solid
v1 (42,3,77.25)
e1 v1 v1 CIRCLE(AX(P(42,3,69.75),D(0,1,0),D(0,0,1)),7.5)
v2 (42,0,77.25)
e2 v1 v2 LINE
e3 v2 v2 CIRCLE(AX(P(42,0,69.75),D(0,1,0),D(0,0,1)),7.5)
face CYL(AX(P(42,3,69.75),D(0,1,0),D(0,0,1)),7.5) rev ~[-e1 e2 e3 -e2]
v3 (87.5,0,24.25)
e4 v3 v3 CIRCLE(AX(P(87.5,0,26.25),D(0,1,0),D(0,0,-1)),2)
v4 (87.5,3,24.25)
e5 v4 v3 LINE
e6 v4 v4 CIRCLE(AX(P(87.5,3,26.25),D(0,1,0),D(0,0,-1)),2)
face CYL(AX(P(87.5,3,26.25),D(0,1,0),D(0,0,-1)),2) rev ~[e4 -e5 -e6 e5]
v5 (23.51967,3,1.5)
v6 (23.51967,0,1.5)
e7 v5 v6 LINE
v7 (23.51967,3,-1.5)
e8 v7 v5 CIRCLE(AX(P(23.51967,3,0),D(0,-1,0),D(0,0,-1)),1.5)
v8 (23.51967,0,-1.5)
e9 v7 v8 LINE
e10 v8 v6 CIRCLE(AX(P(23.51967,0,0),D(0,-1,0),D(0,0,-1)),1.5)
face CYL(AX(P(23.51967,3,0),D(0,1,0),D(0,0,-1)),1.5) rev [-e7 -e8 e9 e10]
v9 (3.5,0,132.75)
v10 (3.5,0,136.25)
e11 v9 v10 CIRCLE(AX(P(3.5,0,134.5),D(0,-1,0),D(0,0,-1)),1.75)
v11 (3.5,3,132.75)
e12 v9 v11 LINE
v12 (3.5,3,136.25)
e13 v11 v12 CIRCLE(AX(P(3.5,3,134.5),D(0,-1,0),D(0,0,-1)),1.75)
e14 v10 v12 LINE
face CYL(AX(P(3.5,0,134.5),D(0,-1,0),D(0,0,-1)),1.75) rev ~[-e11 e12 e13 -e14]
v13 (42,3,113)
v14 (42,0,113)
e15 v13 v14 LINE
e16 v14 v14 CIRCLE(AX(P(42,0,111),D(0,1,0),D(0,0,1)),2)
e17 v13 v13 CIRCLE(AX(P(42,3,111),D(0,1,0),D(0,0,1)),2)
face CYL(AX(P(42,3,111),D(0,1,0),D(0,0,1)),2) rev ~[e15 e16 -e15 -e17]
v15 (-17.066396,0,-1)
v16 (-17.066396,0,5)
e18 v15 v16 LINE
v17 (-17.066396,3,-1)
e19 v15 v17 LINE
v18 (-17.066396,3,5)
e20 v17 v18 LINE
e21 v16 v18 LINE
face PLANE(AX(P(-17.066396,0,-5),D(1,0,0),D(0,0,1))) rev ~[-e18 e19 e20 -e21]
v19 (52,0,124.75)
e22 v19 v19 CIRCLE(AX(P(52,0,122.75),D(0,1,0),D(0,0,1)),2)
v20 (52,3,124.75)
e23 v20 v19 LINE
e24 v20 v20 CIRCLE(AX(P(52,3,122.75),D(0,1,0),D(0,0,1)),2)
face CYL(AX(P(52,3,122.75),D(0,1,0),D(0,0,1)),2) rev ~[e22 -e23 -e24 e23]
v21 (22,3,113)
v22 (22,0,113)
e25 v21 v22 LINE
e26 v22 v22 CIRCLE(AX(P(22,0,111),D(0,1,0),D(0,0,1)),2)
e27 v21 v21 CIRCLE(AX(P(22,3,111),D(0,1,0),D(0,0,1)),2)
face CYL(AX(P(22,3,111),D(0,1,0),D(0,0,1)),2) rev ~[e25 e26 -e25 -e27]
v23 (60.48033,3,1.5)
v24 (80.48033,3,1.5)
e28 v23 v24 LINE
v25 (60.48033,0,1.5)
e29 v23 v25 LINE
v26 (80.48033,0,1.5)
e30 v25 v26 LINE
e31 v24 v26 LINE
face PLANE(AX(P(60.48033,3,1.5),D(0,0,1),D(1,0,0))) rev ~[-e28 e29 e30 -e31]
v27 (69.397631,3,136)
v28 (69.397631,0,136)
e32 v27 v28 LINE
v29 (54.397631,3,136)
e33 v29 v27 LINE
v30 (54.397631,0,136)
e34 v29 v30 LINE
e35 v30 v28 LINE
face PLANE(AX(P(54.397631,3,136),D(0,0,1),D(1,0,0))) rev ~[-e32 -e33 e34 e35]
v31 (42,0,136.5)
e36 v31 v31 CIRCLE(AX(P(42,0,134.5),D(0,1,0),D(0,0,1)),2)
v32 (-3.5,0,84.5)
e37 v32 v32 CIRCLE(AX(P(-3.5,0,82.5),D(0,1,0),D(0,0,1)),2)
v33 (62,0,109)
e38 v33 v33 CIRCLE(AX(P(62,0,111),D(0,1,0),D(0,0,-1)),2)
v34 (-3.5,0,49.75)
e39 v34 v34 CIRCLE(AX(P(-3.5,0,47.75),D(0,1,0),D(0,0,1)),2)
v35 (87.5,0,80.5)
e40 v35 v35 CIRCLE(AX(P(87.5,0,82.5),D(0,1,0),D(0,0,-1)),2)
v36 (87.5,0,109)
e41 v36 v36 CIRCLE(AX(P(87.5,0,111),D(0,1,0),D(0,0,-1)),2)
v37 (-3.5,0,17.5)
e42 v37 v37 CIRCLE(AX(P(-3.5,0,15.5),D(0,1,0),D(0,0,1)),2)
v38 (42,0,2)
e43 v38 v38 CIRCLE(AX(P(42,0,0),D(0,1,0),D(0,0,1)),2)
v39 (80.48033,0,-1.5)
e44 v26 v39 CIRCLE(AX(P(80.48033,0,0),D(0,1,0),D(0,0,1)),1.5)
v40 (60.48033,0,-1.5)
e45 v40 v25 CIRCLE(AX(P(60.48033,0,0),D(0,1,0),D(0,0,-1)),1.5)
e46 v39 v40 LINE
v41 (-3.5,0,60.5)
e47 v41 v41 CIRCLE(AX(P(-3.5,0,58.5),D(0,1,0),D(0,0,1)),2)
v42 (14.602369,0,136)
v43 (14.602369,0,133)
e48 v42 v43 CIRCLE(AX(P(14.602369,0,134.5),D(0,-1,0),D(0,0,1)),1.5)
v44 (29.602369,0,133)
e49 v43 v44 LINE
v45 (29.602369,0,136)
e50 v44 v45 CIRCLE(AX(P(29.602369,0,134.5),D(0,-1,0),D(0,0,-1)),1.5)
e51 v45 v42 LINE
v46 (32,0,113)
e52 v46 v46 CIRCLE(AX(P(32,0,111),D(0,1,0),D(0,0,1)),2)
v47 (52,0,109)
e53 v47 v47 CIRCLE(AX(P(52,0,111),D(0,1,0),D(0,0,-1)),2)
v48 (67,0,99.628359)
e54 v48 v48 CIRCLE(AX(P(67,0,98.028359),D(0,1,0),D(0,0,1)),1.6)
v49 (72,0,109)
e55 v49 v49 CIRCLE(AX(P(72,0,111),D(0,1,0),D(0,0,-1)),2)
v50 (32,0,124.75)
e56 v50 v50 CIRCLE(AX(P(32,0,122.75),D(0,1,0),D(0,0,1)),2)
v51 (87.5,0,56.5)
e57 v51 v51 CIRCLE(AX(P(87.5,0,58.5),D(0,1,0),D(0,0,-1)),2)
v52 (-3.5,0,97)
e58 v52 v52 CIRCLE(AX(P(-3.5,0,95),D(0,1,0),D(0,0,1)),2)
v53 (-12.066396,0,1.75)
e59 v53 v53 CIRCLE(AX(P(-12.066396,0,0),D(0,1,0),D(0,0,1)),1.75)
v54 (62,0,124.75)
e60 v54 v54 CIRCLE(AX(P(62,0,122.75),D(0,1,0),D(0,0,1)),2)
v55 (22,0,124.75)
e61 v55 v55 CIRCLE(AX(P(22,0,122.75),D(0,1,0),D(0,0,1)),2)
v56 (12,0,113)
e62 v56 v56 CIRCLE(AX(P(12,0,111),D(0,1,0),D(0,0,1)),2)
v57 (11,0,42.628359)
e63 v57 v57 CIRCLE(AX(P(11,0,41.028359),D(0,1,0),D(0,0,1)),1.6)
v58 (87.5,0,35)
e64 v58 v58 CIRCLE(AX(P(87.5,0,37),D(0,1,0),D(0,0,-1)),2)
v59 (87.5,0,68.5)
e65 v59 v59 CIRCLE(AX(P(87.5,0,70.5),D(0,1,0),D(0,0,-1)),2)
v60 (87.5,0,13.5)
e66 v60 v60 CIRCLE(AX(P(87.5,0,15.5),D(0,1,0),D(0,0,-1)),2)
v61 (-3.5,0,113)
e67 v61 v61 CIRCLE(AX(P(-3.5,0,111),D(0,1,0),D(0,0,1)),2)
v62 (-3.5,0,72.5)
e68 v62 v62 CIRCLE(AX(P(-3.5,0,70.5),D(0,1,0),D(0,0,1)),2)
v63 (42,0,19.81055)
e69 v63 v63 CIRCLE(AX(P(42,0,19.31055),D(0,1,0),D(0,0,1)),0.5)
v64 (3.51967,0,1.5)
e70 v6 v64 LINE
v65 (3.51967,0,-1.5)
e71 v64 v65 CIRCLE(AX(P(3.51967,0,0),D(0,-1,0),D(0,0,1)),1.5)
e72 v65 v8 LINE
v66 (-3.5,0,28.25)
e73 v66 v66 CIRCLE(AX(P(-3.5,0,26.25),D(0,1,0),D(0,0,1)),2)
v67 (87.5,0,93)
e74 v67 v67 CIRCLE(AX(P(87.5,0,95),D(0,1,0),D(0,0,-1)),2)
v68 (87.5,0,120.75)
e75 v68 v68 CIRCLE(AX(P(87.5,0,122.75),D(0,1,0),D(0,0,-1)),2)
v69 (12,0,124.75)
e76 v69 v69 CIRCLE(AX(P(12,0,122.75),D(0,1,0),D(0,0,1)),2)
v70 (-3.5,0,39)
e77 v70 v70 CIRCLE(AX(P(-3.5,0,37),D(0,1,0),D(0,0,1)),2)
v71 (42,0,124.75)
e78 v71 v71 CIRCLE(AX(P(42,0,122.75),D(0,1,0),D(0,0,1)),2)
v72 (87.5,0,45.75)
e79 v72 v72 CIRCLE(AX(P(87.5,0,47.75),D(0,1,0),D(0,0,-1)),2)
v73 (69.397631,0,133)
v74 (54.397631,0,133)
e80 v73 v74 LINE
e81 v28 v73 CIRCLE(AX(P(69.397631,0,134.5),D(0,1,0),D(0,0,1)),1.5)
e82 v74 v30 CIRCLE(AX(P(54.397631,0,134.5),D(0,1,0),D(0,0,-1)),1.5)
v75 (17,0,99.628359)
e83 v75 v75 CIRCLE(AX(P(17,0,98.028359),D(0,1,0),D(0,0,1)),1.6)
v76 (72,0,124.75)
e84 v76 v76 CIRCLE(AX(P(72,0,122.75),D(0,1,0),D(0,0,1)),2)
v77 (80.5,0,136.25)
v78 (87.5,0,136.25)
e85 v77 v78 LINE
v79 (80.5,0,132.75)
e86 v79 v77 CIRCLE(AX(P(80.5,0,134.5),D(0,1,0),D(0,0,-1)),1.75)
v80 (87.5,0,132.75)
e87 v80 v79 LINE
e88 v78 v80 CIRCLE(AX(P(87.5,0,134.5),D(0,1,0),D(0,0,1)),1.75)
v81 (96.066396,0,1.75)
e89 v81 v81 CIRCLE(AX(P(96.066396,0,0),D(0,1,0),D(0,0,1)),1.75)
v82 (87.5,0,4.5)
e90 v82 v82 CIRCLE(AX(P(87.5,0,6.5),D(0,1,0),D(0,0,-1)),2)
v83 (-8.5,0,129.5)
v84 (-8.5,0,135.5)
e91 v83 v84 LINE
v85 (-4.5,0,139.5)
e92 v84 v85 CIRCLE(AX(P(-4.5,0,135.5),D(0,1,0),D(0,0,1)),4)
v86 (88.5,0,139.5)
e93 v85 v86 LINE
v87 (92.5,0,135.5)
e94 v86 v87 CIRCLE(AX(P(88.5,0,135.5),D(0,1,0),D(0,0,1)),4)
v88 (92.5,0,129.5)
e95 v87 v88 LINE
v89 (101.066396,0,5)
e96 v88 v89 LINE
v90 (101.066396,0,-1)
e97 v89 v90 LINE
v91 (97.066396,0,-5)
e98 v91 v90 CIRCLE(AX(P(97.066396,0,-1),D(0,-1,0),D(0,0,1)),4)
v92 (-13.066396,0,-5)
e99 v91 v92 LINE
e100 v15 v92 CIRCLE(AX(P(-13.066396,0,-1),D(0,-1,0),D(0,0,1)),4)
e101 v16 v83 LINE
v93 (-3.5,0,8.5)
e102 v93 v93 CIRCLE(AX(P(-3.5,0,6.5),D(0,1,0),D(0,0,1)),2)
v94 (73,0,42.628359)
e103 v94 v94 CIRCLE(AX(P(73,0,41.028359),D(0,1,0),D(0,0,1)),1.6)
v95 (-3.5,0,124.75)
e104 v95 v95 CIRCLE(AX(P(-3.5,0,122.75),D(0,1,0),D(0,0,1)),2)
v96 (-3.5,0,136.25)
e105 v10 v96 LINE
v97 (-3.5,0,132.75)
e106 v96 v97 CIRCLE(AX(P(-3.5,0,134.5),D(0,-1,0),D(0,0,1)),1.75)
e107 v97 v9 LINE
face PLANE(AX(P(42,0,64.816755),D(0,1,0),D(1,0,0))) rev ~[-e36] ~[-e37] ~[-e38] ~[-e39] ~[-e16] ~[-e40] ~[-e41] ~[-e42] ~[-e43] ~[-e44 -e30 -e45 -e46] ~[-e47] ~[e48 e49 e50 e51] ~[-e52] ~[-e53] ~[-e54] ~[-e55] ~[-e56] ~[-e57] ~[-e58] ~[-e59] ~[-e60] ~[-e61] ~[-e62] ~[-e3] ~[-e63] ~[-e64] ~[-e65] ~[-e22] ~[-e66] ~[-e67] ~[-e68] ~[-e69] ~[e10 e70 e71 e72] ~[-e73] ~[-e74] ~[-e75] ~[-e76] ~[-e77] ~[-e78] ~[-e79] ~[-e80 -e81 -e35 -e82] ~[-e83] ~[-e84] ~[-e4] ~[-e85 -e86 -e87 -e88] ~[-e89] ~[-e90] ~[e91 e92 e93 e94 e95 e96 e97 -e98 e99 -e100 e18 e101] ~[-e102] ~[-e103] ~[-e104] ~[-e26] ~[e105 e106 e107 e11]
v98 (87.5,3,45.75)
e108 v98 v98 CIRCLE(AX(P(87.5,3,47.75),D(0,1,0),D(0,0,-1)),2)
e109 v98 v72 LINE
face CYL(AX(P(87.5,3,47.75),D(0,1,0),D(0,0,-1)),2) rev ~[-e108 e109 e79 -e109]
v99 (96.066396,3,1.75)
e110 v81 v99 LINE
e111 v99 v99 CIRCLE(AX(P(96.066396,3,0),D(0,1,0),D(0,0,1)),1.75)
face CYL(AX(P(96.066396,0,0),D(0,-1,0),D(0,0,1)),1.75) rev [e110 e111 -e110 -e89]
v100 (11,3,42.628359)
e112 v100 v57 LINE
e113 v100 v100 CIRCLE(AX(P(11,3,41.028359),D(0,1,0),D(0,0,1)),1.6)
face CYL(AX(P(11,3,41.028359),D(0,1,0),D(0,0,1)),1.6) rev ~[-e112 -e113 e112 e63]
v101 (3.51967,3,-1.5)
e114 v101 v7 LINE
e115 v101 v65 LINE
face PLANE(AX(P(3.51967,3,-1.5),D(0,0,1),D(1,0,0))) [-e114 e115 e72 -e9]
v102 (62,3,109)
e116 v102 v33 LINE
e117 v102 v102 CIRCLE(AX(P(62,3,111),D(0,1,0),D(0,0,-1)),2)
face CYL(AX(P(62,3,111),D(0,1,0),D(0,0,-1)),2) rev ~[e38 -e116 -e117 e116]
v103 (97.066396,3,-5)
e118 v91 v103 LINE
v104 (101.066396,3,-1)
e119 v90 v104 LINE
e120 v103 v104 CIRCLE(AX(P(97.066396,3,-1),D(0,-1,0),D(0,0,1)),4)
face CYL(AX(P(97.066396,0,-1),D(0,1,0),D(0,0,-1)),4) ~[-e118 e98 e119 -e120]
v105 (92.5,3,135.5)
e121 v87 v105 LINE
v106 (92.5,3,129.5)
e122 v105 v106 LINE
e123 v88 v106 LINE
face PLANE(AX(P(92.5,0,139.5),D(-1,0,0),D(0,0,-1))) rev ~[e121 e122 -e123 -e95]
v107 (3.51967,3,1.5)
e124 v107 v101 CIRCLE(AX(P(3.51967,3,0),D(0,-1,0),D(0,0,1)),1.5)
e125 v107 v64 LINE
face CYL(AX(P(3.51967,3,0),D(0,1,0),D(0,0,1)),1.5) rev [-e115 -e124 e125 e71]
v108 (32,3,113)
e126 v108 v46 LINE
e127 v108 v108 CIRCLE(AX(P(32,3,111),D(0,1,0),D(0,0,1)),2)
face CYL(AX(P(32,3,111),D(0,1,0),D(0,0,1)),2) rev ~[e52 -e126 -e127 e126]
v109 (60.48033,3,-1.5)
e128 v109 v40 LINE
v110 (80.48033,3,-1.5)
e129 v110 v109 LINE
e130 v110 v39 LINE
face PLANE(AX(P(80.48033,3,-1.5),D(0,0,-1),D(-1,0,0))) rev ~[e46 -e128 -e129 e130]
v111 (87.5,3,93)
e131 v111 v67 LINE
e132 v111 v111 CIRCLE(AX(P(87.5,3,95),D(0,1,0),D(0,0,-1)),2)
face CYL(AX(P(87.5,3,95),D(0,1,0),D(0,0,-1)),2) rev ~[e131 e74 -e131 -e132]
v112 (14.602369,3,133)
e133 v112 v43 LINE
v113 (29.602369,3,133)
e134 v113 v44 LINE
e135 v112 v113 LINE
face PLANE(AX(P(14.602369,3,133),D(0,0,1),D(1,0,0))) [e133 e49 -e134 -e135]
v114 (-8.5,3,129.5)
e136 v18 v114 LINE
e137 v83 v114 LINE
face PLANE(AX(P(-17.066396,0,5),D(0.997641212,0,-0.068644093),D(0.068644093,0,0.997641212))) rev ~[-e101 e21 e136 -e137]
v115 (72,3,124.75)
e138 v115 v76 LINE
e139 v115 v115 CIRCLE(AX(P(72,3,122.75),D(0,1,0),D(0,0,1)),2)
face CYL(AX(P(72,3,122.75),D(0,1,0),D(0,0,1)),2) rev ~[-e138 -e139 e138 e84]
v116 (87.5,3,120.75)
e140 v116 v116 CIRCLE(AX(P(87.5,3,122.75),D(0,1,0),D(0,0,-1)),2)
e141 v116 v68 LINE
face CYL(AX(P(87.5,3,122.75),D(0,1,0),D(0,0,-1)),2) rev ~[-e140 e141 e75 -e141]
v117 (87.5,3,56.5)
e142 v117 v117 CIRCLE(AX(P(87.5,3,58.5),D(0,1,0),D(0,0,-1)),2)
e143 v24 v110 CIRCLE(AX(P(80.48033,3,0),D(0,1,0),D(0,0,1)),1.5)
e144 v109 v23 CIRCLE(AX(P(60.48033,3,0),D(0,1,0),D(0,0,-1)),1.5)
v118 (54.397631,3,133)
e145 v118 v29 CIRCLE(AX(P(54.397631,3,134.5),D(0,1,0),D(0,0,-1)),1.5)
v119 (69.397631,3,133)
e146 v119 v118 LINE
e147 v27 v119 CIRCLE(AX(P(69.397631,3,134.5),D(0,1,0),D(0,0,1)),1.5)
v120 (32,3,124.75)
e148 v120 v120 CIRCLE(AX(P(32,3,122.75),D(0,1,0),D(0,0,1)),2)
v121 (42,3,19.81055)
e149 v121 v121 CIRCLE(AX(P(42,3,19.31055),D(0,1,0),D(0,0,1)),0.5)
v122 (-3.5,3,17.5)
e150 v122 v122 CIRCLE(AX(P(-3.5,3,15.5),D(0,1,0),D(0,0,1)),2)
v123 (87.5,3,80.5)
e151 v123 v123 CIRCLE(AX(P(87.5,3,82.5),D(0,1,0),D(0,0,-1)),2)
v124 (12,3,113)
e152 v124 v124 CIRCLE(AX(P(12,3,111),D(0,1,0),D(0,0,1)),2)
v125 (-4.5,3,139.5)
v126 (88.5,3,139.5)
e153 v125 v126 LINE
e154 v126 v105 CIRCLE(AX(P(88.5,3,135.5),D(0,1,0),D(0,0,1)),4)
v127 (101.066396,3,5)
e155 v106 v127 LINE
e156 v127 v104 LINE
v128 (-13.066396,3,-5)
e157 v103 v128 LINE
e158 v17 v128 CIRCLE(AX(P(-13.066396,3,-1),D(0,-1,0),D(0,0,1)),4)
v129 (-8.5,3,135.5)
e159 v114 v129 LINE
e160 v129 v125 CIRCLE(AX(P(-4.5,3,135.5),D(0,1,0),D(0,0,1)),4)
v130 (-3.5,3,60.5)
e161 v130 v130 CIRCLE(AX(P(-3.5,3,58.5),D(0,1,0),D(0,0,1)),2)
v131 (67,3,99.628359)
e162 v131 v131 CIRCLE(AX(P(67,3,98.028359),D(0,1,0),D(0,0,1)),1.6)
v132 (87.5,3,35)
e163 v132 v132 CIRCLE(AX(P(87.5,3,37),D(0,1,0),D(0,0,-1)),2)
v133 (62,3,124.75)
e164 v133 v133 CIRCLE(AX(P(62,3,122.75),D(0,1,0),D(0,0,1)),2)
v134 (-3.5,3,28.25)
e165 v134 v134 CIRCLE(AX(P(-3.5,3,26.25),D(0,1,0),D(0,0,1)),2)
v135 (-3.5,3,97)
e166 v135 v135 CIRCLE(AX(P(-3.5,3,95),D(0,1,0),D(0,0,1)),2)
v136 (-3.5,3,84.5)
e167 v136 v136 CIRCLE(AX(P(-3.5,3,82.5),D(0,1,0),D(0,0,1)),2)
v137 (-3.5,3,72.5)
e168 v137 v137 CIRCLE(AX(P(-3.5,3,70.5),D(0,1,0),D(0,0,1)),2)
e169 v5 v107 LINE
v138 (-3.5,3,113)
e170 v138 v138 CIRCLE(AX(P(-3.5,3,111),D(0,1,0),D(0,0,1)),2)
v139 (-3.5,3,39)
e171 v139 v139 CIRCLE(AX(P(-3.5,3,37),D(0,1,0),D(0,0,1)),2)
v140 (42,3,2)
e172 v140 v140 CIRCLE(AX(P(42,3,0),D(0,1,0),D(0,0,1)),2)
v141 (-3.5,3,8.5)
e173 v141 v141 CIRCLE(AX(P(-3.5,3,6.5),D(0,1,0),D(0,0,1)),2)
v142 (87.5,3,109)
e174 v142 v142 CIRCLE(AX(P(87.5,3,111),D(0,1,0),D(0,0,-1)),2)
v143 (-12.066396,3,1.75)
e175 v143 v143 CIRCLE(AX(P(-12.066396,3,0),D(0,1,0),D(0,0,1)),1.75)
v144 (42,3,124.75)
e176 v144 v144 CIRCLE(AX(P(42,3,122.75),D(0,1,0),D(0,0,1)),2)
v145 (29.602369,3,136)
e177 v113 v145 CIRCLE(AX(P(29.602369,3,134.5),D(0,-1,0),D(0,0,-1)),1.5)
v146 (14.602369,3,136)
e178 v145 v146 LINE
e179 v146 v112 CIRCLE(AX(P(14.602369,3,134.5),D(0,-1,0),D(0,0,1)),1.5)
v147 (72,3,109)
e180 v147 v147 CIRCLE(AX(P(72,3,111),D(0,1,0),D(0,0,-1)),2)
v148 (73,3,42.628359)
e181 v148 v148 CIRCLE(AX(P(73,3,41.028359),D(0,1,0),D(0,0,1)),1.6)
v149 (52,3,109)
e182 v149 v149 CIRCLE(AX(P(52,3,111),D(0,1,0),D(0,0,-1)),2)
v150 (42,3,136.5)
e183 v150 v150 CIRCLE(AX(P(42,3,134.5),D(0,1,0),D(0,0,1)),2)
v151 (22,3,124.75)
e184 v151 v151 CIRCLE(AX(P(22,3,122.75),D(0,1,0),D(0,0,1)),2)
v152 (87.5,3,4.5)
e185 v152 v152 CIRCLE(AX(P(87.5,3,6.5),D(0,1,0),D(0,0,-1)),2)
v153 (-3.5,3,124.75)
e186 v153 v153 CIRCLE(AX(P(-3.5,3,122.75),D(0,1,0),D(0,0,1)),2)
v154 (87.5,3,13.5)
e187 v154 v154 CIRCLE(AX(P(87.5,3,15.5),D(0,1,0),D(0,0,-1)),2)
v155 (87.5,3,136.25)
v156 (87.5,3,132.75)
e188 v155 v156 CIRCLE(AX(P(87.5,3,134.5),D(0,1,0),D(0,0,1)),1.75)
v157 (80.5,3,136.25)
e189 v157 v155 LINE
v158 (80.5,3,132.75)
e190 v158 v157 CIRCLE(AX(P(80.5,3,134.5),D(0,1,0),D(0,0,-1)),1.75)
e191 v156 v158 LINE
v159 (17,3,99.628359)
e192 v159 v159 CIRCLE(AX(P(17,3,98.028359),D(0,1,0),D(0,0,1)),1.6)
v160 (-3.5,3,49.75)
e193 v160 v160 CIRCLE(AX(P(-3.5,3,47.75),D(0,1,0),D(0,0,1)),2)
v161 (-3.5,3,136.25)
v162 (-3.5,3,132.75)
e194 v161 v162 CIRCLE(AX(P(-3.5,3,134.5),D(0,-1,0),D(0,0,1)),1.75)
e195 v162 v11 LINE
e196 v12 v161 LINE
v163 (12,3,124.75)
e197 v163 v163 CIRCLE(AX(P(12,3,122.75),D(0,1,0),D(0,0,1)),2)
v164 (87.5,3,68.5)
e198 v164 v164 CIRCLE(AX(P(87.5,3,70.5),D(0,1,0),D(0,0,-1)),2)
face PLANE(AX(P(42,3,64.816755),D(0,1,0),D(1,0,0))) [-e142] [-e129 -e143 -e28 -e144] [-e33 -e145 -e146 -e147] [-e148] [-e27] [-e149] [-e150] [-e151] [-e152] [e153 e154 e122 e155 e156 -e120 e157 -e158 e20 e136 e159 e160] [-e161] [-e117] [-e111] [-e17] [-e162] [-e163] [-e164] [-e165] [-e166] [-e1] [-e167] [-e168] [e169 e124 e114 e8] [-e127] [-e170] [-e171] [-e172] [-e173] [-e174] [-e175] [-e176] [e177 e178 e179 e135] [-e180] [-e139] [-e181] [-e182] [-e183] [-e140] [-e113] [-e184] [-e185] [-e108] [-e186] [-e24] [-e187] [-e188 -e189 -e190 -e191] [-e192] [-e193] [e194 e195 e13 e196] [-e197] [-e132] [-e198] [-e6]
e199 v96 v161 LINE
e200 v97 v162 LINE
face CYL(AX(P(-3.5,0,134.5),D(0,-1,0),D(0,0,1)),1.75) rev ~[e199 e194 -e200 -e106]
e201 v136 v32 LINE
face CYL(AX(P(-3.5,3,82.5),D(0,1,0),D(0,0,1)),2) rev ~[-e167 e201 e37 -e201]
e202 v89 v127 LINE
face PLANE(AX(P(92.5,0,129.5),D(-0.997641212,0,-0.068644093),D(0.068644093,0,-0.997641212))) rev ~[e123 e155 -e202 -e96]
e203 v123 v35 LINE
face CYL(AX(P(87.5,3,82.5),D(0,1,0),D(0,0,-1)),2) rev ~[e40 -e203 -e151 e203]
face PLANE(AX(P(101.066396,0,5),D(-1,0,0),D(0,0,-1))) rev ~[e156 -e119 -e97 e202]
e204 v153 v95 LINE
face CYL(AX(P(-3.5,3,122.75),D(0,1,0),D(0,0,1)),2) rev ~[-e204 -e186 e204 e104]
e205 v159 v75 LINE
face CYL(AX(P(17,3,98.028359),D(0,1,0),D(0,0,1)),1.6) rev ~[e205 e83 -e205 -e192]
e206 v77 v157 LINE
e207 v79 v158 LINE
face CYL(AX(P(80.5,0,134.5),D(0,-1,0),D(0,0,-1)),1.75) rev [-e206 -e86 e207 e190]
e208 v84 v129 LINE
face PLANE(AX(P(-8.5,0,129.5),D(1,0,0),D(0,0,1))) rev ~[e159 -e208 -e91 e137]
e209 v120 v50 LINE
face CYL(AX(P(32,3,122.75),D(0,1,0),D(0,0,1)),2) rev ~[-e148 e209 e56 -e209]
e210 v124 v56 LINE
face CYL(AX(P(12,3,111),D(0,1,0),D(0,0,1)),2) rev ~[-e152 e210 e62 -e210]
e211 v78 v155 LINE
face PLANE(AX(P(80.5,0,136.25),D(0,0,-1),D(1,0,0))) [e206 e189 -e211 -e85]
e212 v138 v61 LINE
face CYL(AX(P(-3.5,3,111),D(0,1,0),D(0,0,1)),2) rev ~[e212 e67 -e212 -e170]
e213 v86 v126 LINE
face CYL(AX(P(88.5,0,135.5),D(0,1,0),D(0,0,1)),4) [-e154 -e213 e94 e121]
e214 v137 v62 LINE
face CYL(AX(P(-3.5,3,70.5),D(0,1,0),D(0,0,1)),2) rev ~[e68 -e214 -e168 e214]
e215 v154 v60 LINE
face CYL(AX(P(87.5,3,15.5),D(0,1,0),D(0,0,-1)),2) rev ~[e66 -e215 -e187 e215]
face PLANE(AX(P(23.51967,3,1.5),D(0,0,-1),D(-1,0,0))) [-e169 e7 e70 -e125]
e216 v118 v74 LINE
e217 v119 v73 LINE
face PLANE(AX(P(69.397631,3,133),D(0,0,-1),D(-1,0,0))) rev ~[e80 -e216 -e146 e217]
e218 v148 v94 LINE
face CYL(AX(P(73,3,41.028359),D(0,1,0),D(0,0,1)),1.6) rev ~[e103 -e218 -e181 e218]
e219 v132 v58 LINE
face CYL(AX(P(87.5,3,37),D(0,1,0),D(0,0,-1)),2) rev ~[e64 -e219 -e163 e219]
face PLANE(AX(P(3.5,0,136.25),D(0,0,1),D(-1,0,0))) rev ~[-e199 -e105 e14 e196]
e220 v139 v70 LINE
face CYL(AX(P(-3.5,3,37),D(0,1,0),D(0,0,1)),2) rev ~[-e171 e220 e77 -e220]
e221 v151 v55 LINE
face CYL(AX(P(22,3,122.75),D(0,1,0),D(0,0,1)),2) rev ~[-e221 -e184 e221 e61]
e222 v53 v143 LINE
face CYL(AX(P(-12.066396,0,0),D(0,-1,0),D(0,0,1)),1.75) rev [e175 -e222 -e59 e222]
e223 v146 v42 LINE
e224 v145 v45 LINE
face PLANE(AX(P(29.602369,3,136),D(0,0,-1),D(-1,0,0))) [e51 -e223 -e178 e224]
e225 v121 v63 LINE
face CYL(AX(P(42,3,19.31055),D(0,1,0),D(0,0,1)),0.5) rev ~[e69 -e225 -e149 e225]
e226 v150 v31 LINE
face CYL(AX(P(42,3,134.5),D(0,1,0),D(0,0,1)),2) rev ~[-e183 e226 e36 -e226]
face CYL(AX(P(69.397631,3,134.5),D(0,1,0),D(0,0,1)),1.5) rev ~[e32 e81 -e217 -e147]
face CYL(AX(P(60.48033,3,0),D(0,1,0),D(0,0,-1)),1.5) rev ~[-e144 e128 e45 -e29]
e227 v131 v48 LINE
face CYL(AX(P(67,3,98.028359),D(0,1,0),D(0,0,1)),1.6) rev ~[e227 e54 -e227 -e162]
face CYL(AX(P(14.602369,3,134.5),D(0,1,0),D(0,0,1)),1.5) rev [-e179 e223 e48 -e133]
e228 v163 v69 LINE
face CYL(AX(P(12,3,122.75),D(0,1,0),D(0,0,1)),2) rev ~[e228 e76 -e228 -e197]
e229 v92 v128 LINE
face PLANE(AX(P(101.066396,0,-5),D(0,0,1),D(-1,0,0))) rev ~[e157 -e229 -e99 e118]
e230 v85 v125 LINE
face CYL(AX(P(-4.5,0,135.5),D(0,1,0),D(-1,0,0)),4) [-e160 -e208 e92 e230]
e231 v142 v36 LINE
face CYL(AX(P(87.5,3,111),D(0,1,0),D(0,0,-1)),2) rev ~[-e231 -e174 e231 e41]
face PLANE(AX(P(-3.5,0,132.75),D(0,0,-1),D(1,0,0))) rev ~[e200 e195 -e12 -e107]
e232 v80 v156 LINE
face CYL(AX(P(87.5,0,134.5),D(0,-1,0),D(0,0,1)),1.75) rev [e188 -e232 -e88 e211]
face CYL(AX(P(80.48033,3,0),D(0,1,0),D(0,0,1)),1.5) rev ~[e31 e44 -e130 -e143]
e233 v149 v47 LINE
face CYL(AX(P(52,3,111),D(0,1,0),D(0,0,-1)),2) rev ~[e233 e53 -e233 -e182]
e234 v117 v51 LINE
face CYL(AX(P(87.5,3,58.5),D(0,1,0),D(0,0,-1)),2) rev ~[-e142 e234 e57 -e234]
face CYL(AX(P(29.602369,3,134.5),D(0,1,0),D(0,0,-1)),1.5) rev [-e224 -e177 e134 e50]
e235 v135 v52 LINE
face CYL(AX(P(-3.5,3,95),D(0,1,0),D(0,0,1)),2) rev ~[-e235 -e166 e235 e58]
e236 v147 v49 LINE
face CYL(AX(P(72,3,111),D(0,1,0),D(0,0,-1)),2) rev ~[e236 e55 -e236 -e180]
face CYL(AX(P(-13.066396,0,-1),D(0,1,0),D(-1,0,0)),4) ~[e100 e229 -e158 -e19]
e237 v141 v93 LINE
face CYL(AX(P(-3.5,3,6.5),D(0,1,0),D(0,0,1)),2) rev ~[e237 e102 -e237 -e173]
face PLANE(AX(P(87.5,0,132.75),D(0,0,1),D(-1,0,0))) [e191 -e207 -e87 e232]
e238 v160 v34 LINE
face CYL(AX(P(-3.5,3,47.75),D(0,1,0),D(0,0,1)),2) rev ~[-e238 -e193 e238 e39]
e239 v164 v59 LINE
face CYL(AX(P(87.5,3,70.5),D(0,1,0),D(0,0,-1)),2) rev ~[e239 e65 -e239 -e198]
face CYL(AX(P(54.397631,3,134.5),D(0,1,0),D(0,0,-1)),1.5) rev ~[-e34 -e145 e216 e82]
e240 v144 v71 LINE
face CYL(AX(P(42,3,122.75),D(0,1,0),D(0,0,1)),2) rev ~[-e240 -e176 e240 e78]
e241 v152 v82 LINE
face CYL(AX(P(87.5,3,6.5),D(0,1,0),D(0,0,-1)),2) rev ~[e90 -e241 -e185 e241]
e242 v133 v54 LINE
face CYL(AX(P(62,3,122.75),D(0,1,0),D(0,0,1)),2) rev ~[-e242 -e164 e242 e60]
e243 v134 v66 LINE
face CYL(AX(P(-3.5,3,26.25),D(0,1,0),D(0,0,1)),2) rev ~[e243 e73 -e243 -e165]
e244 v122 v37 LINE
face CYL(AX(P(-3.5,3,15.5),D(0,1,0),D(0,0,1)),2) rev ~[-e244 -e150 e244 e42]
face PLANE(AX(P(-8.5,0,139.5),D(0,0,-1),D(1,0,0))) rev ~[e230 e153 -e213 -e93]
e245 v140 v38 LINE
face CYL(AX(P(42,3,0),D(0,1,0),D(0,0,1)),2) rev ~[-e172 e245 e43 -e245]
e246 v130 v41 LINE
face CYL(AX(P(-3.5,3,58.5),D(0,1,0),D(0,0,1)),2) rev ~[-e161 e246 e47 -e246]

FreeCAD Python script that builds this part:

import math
import FreeCAD as App
import Part
import Sketcher
from FreeCAD import Vector
Q = App.Units.Quantity


def edges_at(feature, points):
    """Names of the edges that pass closest to the given points."""
    edges = feature.Shape.Edges
    near = lambda p: min(range(len(edges)), key=lambda i: edges[i].distToShape(Part.Vertex(*p))[0])
    return sorted({f"Edge{near(p) + 1}" for p in points})


def add_polygon(sketch, points):
    """Adds a closed chain of lines whose ends are joined by coincident constraints."""
    first, n = sketch.GeometryCount, len(points)
    for a, b in zip(points, points[1:] + points[:1]):
        sketch.addGeometry(Part.LineSegment(App.Vector(*a, 0), App.Vector(*b, 0)), False)
    for i in range(n):
        sketch.addConstraint(Sketcher.Constraint("Coincident", first + i, 2, first + (i + 1) % n, 1))

doc = App.newDocument("Part")
body = doc.addObject("PartDesign::Body", "Body")

sketch1 = body.newObject("Sketcher::SketchObject", "Sketch")
sketch1.AttachmentSupport = (doc.getObject("XZ_Plane"), [""])
sketch1.MapMode = "FlatFace"
add_polygon(sketch1, [(-17.066396, 5), (-8.5, 129.5), (-8.5, 139.5), (92.5, 139.5), (92.5, 129.5), (101.066396, 5), (101.066396, -5), (-17.066396, -5)])
sketch1.addGeometry(Part.ArcOfCircle(Part.Circle(Vector(-3.5, 134.5, 0), Vector(0, 0, 1), 1.75), math.radians(90), math.radians(270)), False)
sketch1.addGeometry(Part.LineSegment(Vector(-3.5, 132.75, 0), Vector(3.5, 132.75, 0)), False)
sketch1.addGeometry(Part.ArcOfCircle(Part.Circle(Vector(3.5, 134.5, 0), Vector(0, 0, 1), 1.75), math.radians(-90), math.radians(90)), False)
sketch1.addGeometry(Part.LineSegment(Vector(3.5, 136.25, 0), Vector(-3.5, 136.25, 0)), False)
sketch1.addGeometry(Part.LineSegment(Vector(80.5, 132.75, 0), Vector(87.5, 132.75, 0)), False)
sketch1.addGeometry(Part.ArcOfCircle(Part.Circle(Vector(87.5, 134.5, 0), Vector(0, 0, 1), 1.75), math.radians(-90), math.radians(90)), False)
sketch1.addGeometry(Part.LineSegment(Vector(87.5, 136.25, 0), Vector(80.5, 136.25, 0)), False)
sketch1.addGeometry(Part.ArcOfCircle(Part.Circle(Vector(80.5, 134.5, 0), Vector(0, 0, 1), 1.75), math.radians(90), math.radians(270)), False)
sketch1.addGeometry(Part.Circle(Vector(-12.066396, 0, 0), Vector(0, 0, 1), 1.75), False)
sketch1.addGeometry(Part.Circle(Vector(96.066396, 0, 0), Vector(0, 0, 1), 1.75), False)
sketch1.addConstraint([
    Sketcher.Constraint("Tangent", 8, 2, 9, 1),
    Sketcher.Constraint("Tangent", 9, 2, 10, 1),
    Sketcher.Constraint("Tangent", 10, 2, 11, 1),
    Sketcher.Constraint("Tangent", 11, 2, 8, 1),
    Sketcher.Constraint("Tangent", 12, 2, 13, 1),
    Sketcher.Constraint("Tangent", 13, 2, 14, 1),
    Sketcher.Constraint("Tangent", 14, 2, 15, 1),
    Sketcher.Constraint("Tangent", 15, 2, 12, 1),
    Sketcher.Constraint("Vertical", 1),
    Sketcher.Constraint("Horizontal", 2),
    Sketcher.Constraint("Vertical", 3),
    Sketcher.Constraint("Vertical", 5),
    Sketcher.Constraint("Horizontal", 6),
    Sketcher.Constraint("Vertical", 7),
    Sketcher.Constraint("Horizontal", 9),
    Sketcher.Constraint("Horizontal", 11),
    Sketcher.Constraint("Horizontal", 12),
    Sketcher.Constraint("Horizontal", 14),
    Sketcher.Constraint("Equal", 10, 13),
    Sketcher.Constraint("Equal", 15, 16),
    Sketcher.Constraint("Equal", 16, 17),
    Sketcher.Constraint("PointOnObject", 16, 3, -1),
    Sketcher.Constraint("PointOnObject", 17, 3, -1),
    Sketcher.Constraint("Horizontal", 10, 3, 13, 3),
    Sketcher.Constraint("Horizontal", 0, 2, 3, 2),
    Sketcher.Constraint("Horizontal", 4, 2, 7, 2),
    Sketcher.Constraint("Equal", 11, 12),
    Sketcher.Constraint("Equal", 3, 5),
    Sketcher.Constraint("Equal", 0, 4),
    Sketcher.Constraint("Diameter", 16, Q("3.5 mm")),
    Sketcher.Constraint("DistanceX", 2, 1, 2, 2, Q("101 mm")),
    Sketcher.Constraint("DistanceX", 9, 1, 9, 2, Q("7 mm")),
    Sketcher.Constraint("DistanceY", 1, 1, 1, 2, Q("10 mm")),
    Sketcher.Constraint("DistanceY", -1, 1, 4, 2, Q("5 mm")),
    Sketcher.Constraint("DistanceX", 10, 3, 13, 3, Q("84 mm")),
    Sketcher.Constraint("DistanceX", 0, 2, 8, 3, Q("5 mm")),
    Sketcher.Constraint("DistanceY", 0, 2, 8, 3, Q("5 mm")),
    Sketcher.Constraint("DistanceX", 17, 3, 4, 2, Q("5 mm")),
    Sketcher.Constraint("DistanceX", 6, 2, 16, 3, Q("5 mm")),
    Sketcher.Constraint("DistanceX", 8, 3, -1, 1, Q("3.5 mm")),
    Sketcher.Constraint("DistanceY", -1, 1, 8, 3, Q("134.5 mm")),
    Sketcher.Constraint("DistanceX", 6, 2, 6, 1, Q("118.132792 mm")),
])
pad1 = body.newObject("PartDesign::Pad", "Pad")
pad1.Profile = sketch1
pad1.Length = 3
pad1.Reversed = True

sketch2 = body.newObject("Sketcher::SketchObject", "Sketch001")
sketch2.AttachmentSupport = (doc.getObject("XZ_Plane"), [""])
sketch2.MapMode = "FlatFace"
sketch2.AttachmentOffset = App.Placement(Vector(0, 0, -3), App.Rotation())
sketch2.addGeometry([
    Part.Circle(Vector(11, 41.028359, 0), Vector(0, 0, 1), 1.6),
    Part.Circle(Vector(73, 41.028359, 0), Vector(0, 0, 1), 1.6),
    Part.Circle(Vector(17, 98.028359, 0), Vector(0, 0, 1), 1.6),
    Part.Circle(Vector(67, 98.028359, 0), Vector(0, 0, 1), 1.6),
], False)
sketch2.addConstraint([
    Sketcher.Constraint("Equal", 0, 1),
    Sketcher.Constraint("Equal", 1, 2),
    Sketcher.Constraint("Equal", 2, 3),
    Sketcher.Constraint("Horizontal", 0, 3, 1, 3),
    Sketcher.Constraint("Horizontal", 2, 3, 3, 3),
    Sketcher.Constraint("Diameter", 0, Q("3.2 mm")),
    Sketcher.Constraint("DistanceX", -1, 1, 0, 3, Q("11 mm")),
    Sketcher.Constraint("DistanceX", -1, 1, 1, 3, Q("73 mm")),
    Sketcher.Constraint("DistanceX", -1, 1, 2, 3, Q("17 mm")),
    Sketcher.Constraint("DistanceX", -1, 1, 3, 3, Q("67 mm")),
    Sketcher.Constraint("DistanceY", 0, 3, 2, 3, Q("57 mm")),
    Sketcher.Constraint("DistanceY", -1, 1, 0, 3, Q("41.028359 mm")),
])
pocket1 = body.newObject("PartDesign::Pocket", "Pocket")
pocket1.Profile = sketch2
pocket1.Length = 3
pocket1.Reversed = True
doc.recompute()

fillet = body.newObject("PartDesign::Fillet", "Fillet")
fillet.Base = (pocket1, edges_at(pocket1, [
    (-17.066, 1.5, -5),
    (101.066, 1.5, -5),
    (92.5, 1.5, 139.5),
    (-8.5, 1.5, 139.5),
]))
fillet.Radius = 4

sketch3 = body.newObject("Sketcher::SketchObject", "Sketch002")
sketch3.AttachmentSupport = (doc.getObject("XZ_Plane"), [""])
sketch3.MapMode = "FlatFace"
sketch3.AttachmentOffset = App.Placement(Vector(0, 0, -3), App.Rotation())
sketch3.addGeometry([
    Part.Circle(Vector(42, 0, 0), Vector(0, 0, 1), 2),
    Part.Circle(Vector(-3.5, 95, 0), Vector(0, 0, 1), 2),
    Part.Circle(Vector(-3.5, 111, 0), Vector(0, 0, 1), 2),
    Part.Circle(Vector(42, 134.5, 0), Vector(0, 0, 1), 2),
    Part.Circle(Vector(-3.5, 122.75, 0), Vector(0, 0, 1), 2),
    Part.Circle(Vector(12, 111, 0), Vector(0, 0, 1), 2),
    Part.Circle(Vector(22, 111, 0), Vector(0, 0, 1), 2),
    Part.Circle(Vector(32, 111, 0), Vector(0, 0, 1), 2),
    Part.Circle(Vector(42, 111, 0), Vector(0, 0, 1), 2),
    Part.Circle(Vector(52, 111, 0), Vector(0, 0, 1), 2),
    Part.Circle(Vector(62, 111, 0), Vector(0, 0, 1), 2),
    Part.Circle(Vector(72, 111, 0), Vector(0, 0, 1), 2),
    Part.Circle(Vector(87.5, 122.75, 0), Vector(0, 0, 1), 2),
    Part.Circle(Vector(87.5, 111, 0), Vector(0, 0, 1), 2),
    Part.Circle(Vector(87.5, 95, 0), Vector(0, 0, 1), 2),
    Part.LineSegment(Vector(3.51967, 1.5, 0), Vector(23.51967, 1.5, 0)),
    Part.ArcOfCircle(Part.Circle(Vector(23.51967, 0, 0), Vector(0, 0, 1), 1.5), math.radians(-90), math.radians(90)),
    Part.LineSegment(Vector(23.51967, -1.5, 0), Vector(3.51967, -1.5, 0)),
    Part.ArcOfCircle(Part.Circle(Vector(3.51967, 0, 0), Vector(0, 0, 1), 1.5), math.radians(90), math.radians(270)),
    Part.LineSegment(Vector(14.602369, 136, 0), Vector(29.602369, 136, 0)),
    Part.ArcOfCircle(Part.Circle(Vector(29.602369, 134.5, 0), Vector(0, 0, 1), 1.5), math.radians(-90), math.radians(90)),
    Part.LineSegment(Vector(29.602369, 133, 0), Vector(14.602369, 133, 0)),
    Part.ArcOfCircle(Part.Circle(Vector(14.602369, 134.5, 0), Vector(0, 0, 1), 1.5), math.radians(90), math.radians(270)),
    Part.LineSegment(Vector(54.397631, 136, 0), Vector(69.397631, 136, 0)),
    Part.ArcOfCircle(Part.Circle(Vector(69.397631, 134.5, 0), Vector(0, 0, 1), 1.5), math.radians(-90), math.radians(90)),
    Part.LineSegment(Vector(69.397631, 133, 0), Vector(54.397631, 133, 0)),
    Part.ArcOfCircle(Part.Circle(Vector(54.397631, 134.5, 0), Vector(0, 0, 1), 1.5), math.radians(90), math.radians(270)),
    Part.LineSegment(Vector(60.48033, 1.5, 0), Vector(80.48033, 1.5, 0)),
    Part.ArcOfCircle(Part.Circle(Vector(80.48033, 0, 0), Vector(0, 0, 1), 1.5), math.radians(-90), math.radians(90)),
    Part.LineSegment(Vector(80.48033, -1.5, 0), Vector(60.48033, -1.5, 0)),
    Part.ArcOfCircle(Part.Circle(Vector(60.48033, 0, 0), Vector(0, 0, 1), 1.5), math.radians(90), math.radians(270)),
], False)
sketch3.addConstraint([
    Sketcher.Constraint("Tangent", 15, 2, 16, 2),
    Sketcher.Constraint("Tangent", 16, 1, 17, 1),
    Sketcher.Constraint("Tangent", 17, 2, 18, 2),
    Sketcher.Constraint("Tangent", 18, 1, 15, 1),
    Sketcher.Constraint("Tangent", 19, 2, 20, 2),
    Sketcher.Constraint("Tangent", 20, 1, 21, 1),
    Sketcher.Constraint("Tangent", 21, 2, 22, 2),
    Sketcher.Constraint("Tangent", 22, 1, 19, 1),
    Sketcher.Constraint("Tangent", 23, 2, 24, 2),
    Sketcher.Constraint("Tangent", 24, 1, 25, 1),
    Sketcher.Constraint("Tangent", 25, 2, 26, 2),
    Sketcher.Constraint("Tangent", 26, 1, 23, 1),
    Sketcher.Constraint("Tangent", 27, 2, 28, 2),
    Sketcher.Constraint("Tangent", 28, 1, 29, 1),
    Sketcher.Constraint("Tangent", 29, 2, 30, 2),
    Sketcher.Constraint("Tangent", 30, 1, 27, 1),
    Sketcher.Constraint("Horizontal", 15),
    Sketcher.Constraint("Horizontal", 17),
    Sketcher.Constraint("Horizontal", 19),
    Sketcher.Constraint("Horizontal", 21),
    Sketcher.Constraint("Horizontal", 23),
    Sketcher.Constraint("Horizontal", 25),
    Sketcher.Constraint("Horizontal", 27),
    Sketcher.Constraint("Horizontal", 29),
    Sketcher.Constraint("Equal", 0, 1),
    Sketcher.Constraint("Equal", 1, 2),
    Sketcher.Constraint("Equal", 2, 3),
    Sketcher.Constraint("Equal", 3, 4),
    Sketcher.Constraint("Equal", 4, 5),
    Sketcher.Constraint("Equal", 5, 6),
    Sketcher.Constraint("Equal", 6, 7),
    Sketcher.Constraint("Equal", 7, 8),
    Sketcher.Constraint("Equal", 8, 9),
    Sketcher.Constraint("Equal", 9, 10),
    Sketcher.Constraint("Equal", 10, 11),
    Sketcher.Constraint("Equal", 11, 12),
    Sketcher.Constraint("Equal", 12, 13),
    Sketcher.Constraint("Equal", 13, 14),
    Sketcher.Constraint("Equal", 18, 20),
    Sketcher.Constraint("Equal", 22, 24),
    Sketcher.Constraint("Equal", 26, 28),
    Sketcher.Constraint("PointOnObject", 0, 3, -1),
    Sketcher.Constraint("PointOnObject", 16, 3, -1),
    Sketcher.Constraint("PointOnObject", 28, 3, -1),
    Sketcher.Constraint("Horizontal", 2, 3, 5, 3),
    Sketcher.Constraint("Horizontal", 5, 3, 6, 3),
    Sketcher.Constraint("Horizontal", 6, 3, 7, 3),
    Sketcher.Constraint("Horizontal", 7, 3, 8, 3),
    Sketcher.Constraint("Horizontal", 8, 3, 9, 3),
    Sketcher.Constraint("Horizontal", 9, 3, 10, 3),
    Sketcher.Constraint("Horizontal", 10, 3, 11, 3),
    Sketcher.Constraint("Horizontal", 4, 3, 12, 3),
    Sketcher.Constraint("Horizontal", 11, 3, 13, 3),
    Sketcher.Constraint("Horizontal", 1, 3, 14, 3),
    Sketcher.Constraint("Horizontal", 3, 3, 20, 3),
    Sketcher.Constraint("Horizontal", 22, 3, 24, 3),
    Sketcher.Constraint("Vertical", 1, 3, 2, 3),
    Sketcher.Constraint("Vertical", 0, 3, 3, 3),
    Sketcher.Constraint("Vertical", 2, 3, 4, 3),
    Sketcher.Constraint("Vertical", 3, 3, 8, 3),
    Sketcher.Constraint("Vertical", 12, 3, 13, 3),
    Sketcher.Constraint("Vertical", 13, 3, 14, 3),
    Sketcher.Constraint("Equal", 21, 23),
    Sketcher.Constraint("Equal", 17, 27),
    Sketcher.Constraint("Diameter", 0, Q("4 mm")),
    Sketcher.Constraint("Radius", 16, Q("1.5 mm")),
    Sketcher.Constraint("DistanceX", 15, 1, 15, 2, Q("20 mm")),
    Sketcher.Constraint("DistanceX", 19, 1, 19, 2, Q("15 mm")),
    Sketcher.Constraint("DistanceX", -1, 1, 0, 3, Q("42 mm")),
    Sketcher.Constraint("DistanceY", -1, 1, 1, 3, Q("95 mm")),
    Sketcher.Constraint("DistanceY", -1, 1, 2, 3, Q("111 mm")),
    Sketcher.Constraint("DistanceX", -1, 1, 5, 3, Q("12 mm")),
    Sketcher.Constraint("DistanceX", -1, 1, 6, 3, Q("22 mm")),
    Sketcher.Constraint("DistanceX", -1, 1, 7, 3, Q("32 mm")),
    Sketcher.Constraint("DistanceX", -1, 1, 9, 3, Q("52 mm")),
    Sketcher.Constraint("DistanceX", -1, 1, 10, 3, Q("62 mm")),
    Sketcher.Constraint("DistanceX", -1, 1, 11, 3, Q("72 mm")),
    Sketcher.Constraint("DistanceY", -1, 1, 19, 2, Q("136 mm")),
    Sketcher.Constraint("DistanceX", 1, 3, -1, 1, Q("3.5 mm")),
    Sketcher.Constraint("DistanceX", -1, 1, 12, 3, Q("87.5 mm")),
    Sketcher.Constraint("DistanceY", -1, 1, 4, 3, Q("122.75 mm")),
    Sketcher.Constraint("DistanceX", -1, 1, 16, 3, Q("23.51967 mm")),
    Sketcher.Constraint("DistanceX", -1, 1, 20, 3, Q("29.602369 mm")),
    Sketcher.Constraint("DistanceX", -1, 1, 24, 3, Q("69.397631 mm")),
    Sketcher.Constraint("DistanceX", -1, 1, 28, 3, Q("80.48033 mm")),
])
pocket2 = body.newObject("PartDesign::Pocket", "Pocket001")
pocket2.Profile = sketch3
pocket2.Length = 3
pocket2.Reversed = True

sketch4 = body.newObject("Sketcher::SketchObject", "Sketch003")
sketch4.AttachmentSupport = (doc.getObject("XZ_Plane"), [""])
sketch4.MapMode = "FlatFace"
sketch4.AttachmentOffset = App.Placement(Vector(0, 0, -3), App.Rotation())
sketch4.addGeometry([
    Part.Circle(Vector(12, 122.75, 0), Vector(0, 0, 1), 2),
    Part.Circle(Vector(22, 122.75, 0), Vector(0, 0, 1), 2),
    Part.Circle(Vector(32, 122.75, 0), Vector(0, 0, 1), 2),
    Part.Circle(Vector(42, 122.75, 0), Vector(0, 0, 1), 2),
    Part.Circle(Vector(52, 122.75, 0), Vector(0, 0, 1), 2),
    Part.Circle(Vector(62, 122.75, 0), Vector(0, 0, 1), 2),
    Part.Circle(Vector(72, 122.75, 0), Vector(0, 0, 1), 2),
], False)
sketch4.addConstraint([
    Sketcher.Constraint("Equal", 0, 1),
    Sketcher.Constraint("Equal", 1, 2),
    Sketcher.Constraint("Equal", 2, 3),
    Sketcher.Constraint("Equal", 3, 4),
    Sketcher.Constraint("Equal", 4, 5),
    Sketcher.Constraint("Equal", 5, 6),
    Sketcher.Constraint("Horizontal", 0, 3, 1, 3),
    Sketcher.Constraint("Horizontal", 1, 3, 2, 3),
    Sketcher.Constraint("Horizontal", 2, 3, 3, 3),
    Sketcher.Constraint("Horizontal", 3, 3, 4, 3),
    Sketcher.Constraint("Horizontal", 4, 3, 5, 3),
    Sketcher.Constraint("Horizontal", 5, 3, 6, 3),
    Sketcher.Constraint("Diameter", 0, Q("4 mm")),
    Sketcher.Constraint("DistanceX", -1, 1, 0, 3, Q("12 mm")),
    Sketcher.Constraint("DistanceX", -1, 1, 1, 3, Q("22 mm")),
    Sketcher.Constraint("DistanceX", -1, 1, 2, 3, Q("32 mm")),
    Sketcher.Constraint("DistanceX", -1, 1, 3, 3, Q("42 mm")),
    Sketcher.Constraint("DistanceX", -1, 1, 4, 3, Q("52 mm")),
    Sketcher.Constraint("DistanceX", -1, 1, 5, 3, Q("62 mm")),
    Sketcher.Constraint("DistanceX", -1, 1, 6, 3, Q("72 mm")),
    Sketcher.Constraint("DistanceY", -1, 1, 0, 3, Q("122.75 mm")),
])
pocket3 = body.newObject("PartDesign::Pocket", "Pocket002")
pocket3.Profile = sketch4
pocket3.Length = 3
pocket3.Reversed = True

sketch5 = body.newObject("Sketcher::SketchObject", "Sketch004")
sketch5.AttachmentSupport = (doc.getObject("XZ_Plane"), [""])
sketch5.MapMode = "FlatFace"
sketch5.AttachmentOffset = App.Placement(Vector(0, 0, -3), App.Rotation())
sketch5.addGeometry(Part.Circle(Vector(42, 69.75, 0), Vector(0, 0, 1), 7.5), False)
sketch5.addConstraint([
    Sketcher.Constraint("Diameter", 0, Q("15 mm")),
    Sketcher.Constraint("DistanceX", -1, 1, 0, 3, Q("42 mm")),
    Sketcher.Constraint("DistanceY", -1, 1, 0, 3, Q("69.75 mm")),
])
pocket4 = body.newObject("PartDesign::Pocket", "Pocket003")
pocket4.Profile = sketch5
pocket4.Length = 3
pocket4.Reversed = True

sketch6 = body.newObject("Sketcher::SketchObject", "Sketch005")
sketch6.AttachmentSupport = (doc.getObject("XZ_Plane"), [""])
sketch6.MapMode = "FlatFace"
sketch6.AttachmentOffset = App.Placement(Vector(0, 0, -3), App.Rotation())
sketch6.addGeometry([
    Part.Circle(Vector(-3.5, 26.25, 0), Vector(0, 0, 1), 2),
    Part.Circle(Vector(-3.5, 37, 0), Vector(0, 0, 1), 2),
    Part.Circle(Vector(-3.5, 70.5, 0), Vector(0, 0, 1), 2),
    Part.Circle(Vector(-3.5, 82.5, 0), Vector(0, 0, 1), 2),
    Part.Circle(Vector(-3.5, 6.5, 0), Vector(0, 0, 1), 2),
    Part.Circle(Vector(-3.5, 15.5, 0), Vector(0, 0, 1), 2),
    Part.Circle(Vector(-3.5, 47.75, 0), Vector(0, 0, 1), 2),
    Part.Circle(Vector(-3.5, 58.5, 0), Vector(0, 0, 1), 2),
    Part.Circle(Vector(87.5, 6.5, 0), Vector(0, 0, 1), 2),
    Part.Circle(Vector(87.5, 15.5, 0), Vector(0, 0, 1), 2),
    Part.Circle(Vector(87.5, 26.25, 0), Vector(0, 0, 1), 2),
    Part.Circle(Vector(87.5, 37, 0), Vector(0, 0, 1), 2),
    Part.Circle(Vector(87.5, 47.75, 0), Vector(0, 0, 1), 2),
    Part.Circle(Vector(87.5, 58.5, 0), Vector(0, 0, 1), 2),
    Part.Circle(Vector(87.5, 70.5, 0), Vector(0, 0, 1), 2),
    Part.Circle(Vector(87.5, 82.5, 0), Vector(0, 0, 1), 2),
], False)
sketch6.addConstraint([
    Sketcher.Constraint("Equal", 0, 1),
    Sketcher.Constraint("Equal", 1, 2),
    Sketcher.Constraint("Equal", 2, 3),
    Sketcher.Constraint("Equal", 3, 4),
    Sketcher.Constraint("Equal", 4, 5),
    Sketcher.Constraint("Equal", 5, 6),
    Sketcher.Constraint("Equal", 6, 7),
    Sketcher.Constraint("Equal", 7, 8),
    Sketcher.Constraint("Equal", 8, 9),
    Sketcher.Constraint("Equal", 9, 10),
    Sketcher.Constraint("Equal", 10, 11),
    Sketcher.Constraint("Equal", 11, 12),
    Sketcher.Constraint("Equal", 12, 13),
    Sketcher.Constraint("Equal", 13, 14),
    Sketcher.Constraint("Equal", 14, 15),
    Sketcher.Constraint("Horizontal", 4, 3, 8, 3),
    Sketcher.Constraint("Horizontal", 5, 3, 9, 3),
    Sketcher.Constraint("Horizontal", 0, 3, 10, 3),
    Sketcher.Constraint("Horizontal", 1, 3, 11, 3),
    Sketcher.Constraint("Horizontal", 6, 3, 12, 3),
    Sketcher.Constraint("Horizontal", 7, 3, 13, 3),
    Sketcher.Constraint("Horizontal", 2, 3, 14, 3),
    Sketcher.Constraint("Horizontal", 3, 3, 15, 3),
    Sketcher.Constraint("Vertical", 0, 3, 1, 3),
    Sketcher.Constraint("Vertical", 1, 3, 2, 3),
    Sketcher.Constraint("Vertical", 2, 3, 3, 3),
    Sketcher.Constraint("Vertical", 3, 3, 4, 3),
    Sketcher.Constraint("Vertical", 4, 3, 5, 3),
    Sketcher.Constraint("Vertical", 5, 3, 6, 3),
    Sketcher.Constraint("Vertical", 6, 3, 7, 3),
    Sketcher.Constraint("Vertical", 8, 3, 9, 3),
    Sketcher.Constraint("Vertical", 9, 3, 10, 3),
    Sketcher.Constraint("Vertical", 10, 3, 11, 3),
    Sketcher.Constraint("Vertical", 11, 3, 12, 3),
    Sketcher.Constraint("Vertical", 12, 3, 13, 3),
    Sketcher.Constraint("Vertical", 13, 3, 14, 3),
    Sketcher.Constraint("Vertical", 14, 3, 15, 3),
    Sketcher.Constraint("Diameter", 0, Q("4 mm")),
    Sketcher.Constraint("DistanceY", -1, 1, 1, 3, Q("37 mm")),
    Sketcher.Constraint("DistanceY", 2, 3, 3, 3, Q("12 mm")),
    Sketcher.Constraint("DistanceY", 4, 3, 2, 3, Q("64 mm")),
    Sketcher.Constraint("DistanceY", 4, 3, 5, 3, Q("9 mm")),
    Sketcher.Constraint("DistanceY", 7, 3, 2, 3, Q("12 mm")),
    Sketcher.Constraint("DistanceX", 4, 3, 8, 3, Q("91 mm")),
    Sketcher.Constraint("DistanceX", 0, 3, -1, 1, Q("3.5 mm")),
    Sketcher.Constraint("DistanceY", -1, 1, 2, 3, Q("70.5 mm")),
    Sketcher.Constraint("DistanceY", 0, 3, 6, 3, Q("21.5 mm")),
    Sketcher.Constraint("DistanceY", -1, 1, 0, 3, Q("26.25 mm")),
])
pocket5 = body.newObject("PartDesign::Pocket", "Pocket004")
pocket5.Profile = sketch6
pocket5.Length = 3
pocket5.Reversed = True

sketch7 = body.newObject("Sketcher::SketchObject", "Sketch006")
sketch7.AttachmentSupport = (doc.getObject("XZ_Plane"), [""])
sketch7.MapMode = "FlatFace"
sketch7.AttachmentOffset = App.Placement(Vector(0, 0, -3), App.Rotation())
sketch7.addGeometry(Part.Circle(Vector(42, 19.31055, 0), Vector(0, 0, 1), 0.5), False)
sketch7.addConstraint([
    Sketcher.Constraint("Diameter", 0, Q("1 mm")),
    Sketcher.Constraint("DistanceX", -1, 1, 0, 3, Q("42 mm")),
    Sketcher.Constraint("DistanceY", -1, 1, 0, 3, Q("19.31055 mm")),
])
pocket6 = body.newObject("PartDesign::Pocket", "Pocket005")
pocket6.Profile = sketch7
pocket6.Length = 3
pocket6.Reversed = True

doc.recompute()
